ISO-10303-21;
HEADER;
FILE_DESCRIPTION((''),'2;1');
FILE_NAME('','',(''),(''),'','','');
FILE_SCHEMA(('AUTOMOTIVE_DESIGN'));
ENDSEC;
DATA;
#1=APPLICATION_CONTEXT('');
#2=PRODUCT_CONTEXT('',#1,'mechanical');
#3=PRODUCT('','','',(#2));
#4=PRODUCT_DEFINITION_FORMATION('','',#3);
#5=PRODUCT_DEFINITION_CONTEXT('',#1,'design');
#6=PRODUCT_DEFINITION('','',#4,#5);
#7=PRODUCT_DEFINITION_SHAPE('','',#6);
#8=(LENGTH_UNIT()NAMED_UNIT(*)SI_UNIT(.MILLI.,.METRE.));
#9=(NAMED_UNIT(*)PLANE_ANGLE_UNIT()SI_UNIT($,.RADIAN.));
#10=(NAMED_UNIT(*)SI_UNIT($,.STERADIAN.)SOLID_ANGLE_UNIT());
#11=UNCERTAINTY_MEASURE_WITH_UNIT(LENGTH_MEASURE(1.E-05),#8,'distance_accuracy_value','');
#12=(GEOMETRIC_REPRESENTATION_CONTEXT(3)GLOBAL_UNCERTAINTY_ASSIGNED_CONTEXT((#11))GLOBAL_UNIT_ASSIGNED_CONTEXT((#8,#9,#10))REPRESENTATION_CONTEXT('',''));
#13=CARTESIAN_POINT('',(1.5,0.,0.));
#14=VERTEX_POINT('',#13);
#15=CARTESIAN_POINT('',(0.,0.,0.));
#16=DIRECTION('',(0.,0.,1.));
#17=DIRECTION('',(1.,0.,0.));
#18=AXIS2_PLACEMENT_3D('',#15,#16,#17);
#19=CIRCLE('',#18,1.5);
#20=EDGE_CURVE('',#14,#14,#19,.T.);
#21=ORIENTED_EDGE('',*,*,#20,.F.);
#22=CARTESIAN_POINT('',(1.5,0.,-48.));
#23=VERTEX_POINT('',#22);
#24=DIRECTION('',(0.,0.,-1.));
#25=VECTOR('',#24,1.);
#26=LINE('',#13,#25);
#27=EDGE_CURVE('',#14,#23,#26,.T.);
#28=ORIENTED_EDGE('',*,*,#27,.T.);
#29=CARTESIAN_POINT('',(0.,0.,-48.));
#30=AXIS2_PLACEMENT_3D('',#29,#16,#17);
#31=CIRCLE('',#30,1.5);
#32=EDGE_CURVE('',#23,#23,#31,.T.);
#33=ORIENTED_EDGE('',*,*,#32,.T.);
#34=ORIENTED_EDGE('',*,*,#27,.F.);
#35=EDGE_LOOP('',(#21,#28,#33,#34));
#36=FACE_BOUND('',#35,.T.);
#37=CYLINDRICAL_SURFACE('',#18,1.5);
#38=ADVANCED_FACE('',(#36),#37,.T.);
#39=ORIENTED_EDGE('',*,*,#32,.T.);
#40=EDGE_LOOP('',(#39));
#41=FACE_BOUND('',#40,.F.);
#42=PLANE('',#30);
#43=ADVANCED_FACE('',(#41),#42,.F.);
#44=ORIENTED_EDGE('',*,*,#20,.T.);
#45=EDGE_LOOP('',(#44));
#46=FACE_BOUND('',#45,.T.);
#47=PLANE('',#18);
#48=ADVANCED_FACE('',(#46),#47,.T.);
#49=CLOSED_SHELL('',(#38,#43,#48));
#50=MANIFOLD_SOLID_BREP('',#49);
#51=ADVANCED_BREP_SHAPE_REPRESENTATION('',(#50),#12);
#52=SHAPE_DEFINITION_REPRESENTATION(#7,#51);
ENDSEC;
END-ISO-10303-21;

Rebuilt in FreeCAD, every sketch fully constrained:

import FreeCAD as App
import Part
import Sketcher

doc = App.newDocument("Part")
body = doc.addObject("PartDesign::Body", "Body")

# Sketch on XY plane
sketch1 = doc.addObject("Sketcher::SketchObject", "Sketch")
body.addObject(sketch1)
sketch1.AttachmentSupport = (doc.XY_Plane, [""])
sketch1.MapMode = "FlatFace"
sketch1.addGeometry(Part.Circle(App.Vector(0, 0, 0), App.Vector(0, 0, 1), 1.5), False)
sketch1.addConstraint([
    Sketcher.Constraint("Coincident", 0, 3, -1, 1),
    Sketcher.Constraint("Diameter", 0, 3.0),
])
pad1 = doc.addObject("PartDesign::Pad", "Pad")
body.addObject(pad1)
pad1.Profile = sketch1
pad1.Length = 48
pad1.Reversed = True

doc.recompute()
